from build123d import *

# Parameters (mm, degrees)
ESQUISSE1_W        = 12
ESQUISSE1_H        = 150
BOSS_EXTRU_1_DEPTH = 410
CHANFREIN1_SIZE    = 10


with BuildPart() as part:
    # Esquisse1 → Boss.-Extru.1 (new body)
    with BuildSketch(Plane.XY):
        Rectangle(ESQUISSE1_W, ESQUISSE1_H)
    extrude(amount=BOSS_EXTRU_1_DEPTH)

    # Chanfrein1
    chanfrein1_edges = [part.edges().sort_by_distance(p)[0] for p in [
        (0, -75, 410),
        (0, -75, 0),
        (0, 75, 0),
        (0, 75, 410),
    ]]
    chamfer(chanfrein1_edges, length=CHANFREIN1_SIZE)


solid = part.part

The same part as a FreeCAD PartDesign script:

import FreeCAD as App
import Part
import Sketcher

V = App.Vector
Q = App.Units.Quantity


def edges_at(feature, points):
    """Names of the edges that pass closest to the given points."""
    edges = feature.Shape.Edges
    near = lambda p: min(range(len(edges)), key=lambda i: edges[i].distToShape(Part.Vertex(*p))[0])
    return sorted({f"Edge{near(p) + 1}" for p in points})


def add_polygon(sketch, points):
    """Adds a closed chain of lines whose ends are joined by coincident constraints."""
    first, n = sketch.GeometryCount, len(points)
    for a, b in zip(points, points[1:] + points[:1]):
        sketch.addGeometry(Part.LineSegment(App.Vector(*a, 0), App.Vector(*b, 0)), False)
    for i in range(n):
        sketch.addConstraint(Sketcher.Constraint("Coincident", first + i, 2, first + (i + 1) % n, 1))

doc = App.newDocument("Part")
body = doc.addObject("PartDesign::Body", "Body")

# Sketch on XY plane
sketch1 = body.newObject("Sketcher::SketchObject", "Sketch")
sketch1.AttachmentSupport = (doc.getObject("XY_Plane"), [""])
sketch1.MapMode = "FlatFace"
add_polygon(sketch1, [(-6, 75), (-6, -75), (6, -75), (6, 75)])  # lines 0-3
sketch1.addConstraint([
    Sketcher.Constraint("Vertical", 0),
    Sketcher.Constraint("Horizontal", 1),
    Sketcher.Constraint("Vertical", 2),
    Sketcher.Constraint("Horizontal", 3),
    Sketcher.Constraint("Symmetric", 0, 2, 2, 2, -1, 1),
    Sketcher.Constraint("DistanceX", 1, 1, 1, 2, Q("12 mm")),
    Sketcher.Constraint("DistanceY", 0, 2, 0, 1, Q("150 mm")),
])
pad1 = body.newObject("PartDesign::Pad", "Pad")
pad1.Profile = sketch1
pad1.Length = 410
doc.recompute()

chamfer = body.newObject("PartDesign::Chamfer", "Chamfer")
chamfer.Base = (pad1, edges_at(pad1, [
    (0, -75, 410),
    (0, -75, 0),
    (0, 75, 0),
    (0, 75, 410),
]))
chamfer.Size = 10

doc.recompute()
